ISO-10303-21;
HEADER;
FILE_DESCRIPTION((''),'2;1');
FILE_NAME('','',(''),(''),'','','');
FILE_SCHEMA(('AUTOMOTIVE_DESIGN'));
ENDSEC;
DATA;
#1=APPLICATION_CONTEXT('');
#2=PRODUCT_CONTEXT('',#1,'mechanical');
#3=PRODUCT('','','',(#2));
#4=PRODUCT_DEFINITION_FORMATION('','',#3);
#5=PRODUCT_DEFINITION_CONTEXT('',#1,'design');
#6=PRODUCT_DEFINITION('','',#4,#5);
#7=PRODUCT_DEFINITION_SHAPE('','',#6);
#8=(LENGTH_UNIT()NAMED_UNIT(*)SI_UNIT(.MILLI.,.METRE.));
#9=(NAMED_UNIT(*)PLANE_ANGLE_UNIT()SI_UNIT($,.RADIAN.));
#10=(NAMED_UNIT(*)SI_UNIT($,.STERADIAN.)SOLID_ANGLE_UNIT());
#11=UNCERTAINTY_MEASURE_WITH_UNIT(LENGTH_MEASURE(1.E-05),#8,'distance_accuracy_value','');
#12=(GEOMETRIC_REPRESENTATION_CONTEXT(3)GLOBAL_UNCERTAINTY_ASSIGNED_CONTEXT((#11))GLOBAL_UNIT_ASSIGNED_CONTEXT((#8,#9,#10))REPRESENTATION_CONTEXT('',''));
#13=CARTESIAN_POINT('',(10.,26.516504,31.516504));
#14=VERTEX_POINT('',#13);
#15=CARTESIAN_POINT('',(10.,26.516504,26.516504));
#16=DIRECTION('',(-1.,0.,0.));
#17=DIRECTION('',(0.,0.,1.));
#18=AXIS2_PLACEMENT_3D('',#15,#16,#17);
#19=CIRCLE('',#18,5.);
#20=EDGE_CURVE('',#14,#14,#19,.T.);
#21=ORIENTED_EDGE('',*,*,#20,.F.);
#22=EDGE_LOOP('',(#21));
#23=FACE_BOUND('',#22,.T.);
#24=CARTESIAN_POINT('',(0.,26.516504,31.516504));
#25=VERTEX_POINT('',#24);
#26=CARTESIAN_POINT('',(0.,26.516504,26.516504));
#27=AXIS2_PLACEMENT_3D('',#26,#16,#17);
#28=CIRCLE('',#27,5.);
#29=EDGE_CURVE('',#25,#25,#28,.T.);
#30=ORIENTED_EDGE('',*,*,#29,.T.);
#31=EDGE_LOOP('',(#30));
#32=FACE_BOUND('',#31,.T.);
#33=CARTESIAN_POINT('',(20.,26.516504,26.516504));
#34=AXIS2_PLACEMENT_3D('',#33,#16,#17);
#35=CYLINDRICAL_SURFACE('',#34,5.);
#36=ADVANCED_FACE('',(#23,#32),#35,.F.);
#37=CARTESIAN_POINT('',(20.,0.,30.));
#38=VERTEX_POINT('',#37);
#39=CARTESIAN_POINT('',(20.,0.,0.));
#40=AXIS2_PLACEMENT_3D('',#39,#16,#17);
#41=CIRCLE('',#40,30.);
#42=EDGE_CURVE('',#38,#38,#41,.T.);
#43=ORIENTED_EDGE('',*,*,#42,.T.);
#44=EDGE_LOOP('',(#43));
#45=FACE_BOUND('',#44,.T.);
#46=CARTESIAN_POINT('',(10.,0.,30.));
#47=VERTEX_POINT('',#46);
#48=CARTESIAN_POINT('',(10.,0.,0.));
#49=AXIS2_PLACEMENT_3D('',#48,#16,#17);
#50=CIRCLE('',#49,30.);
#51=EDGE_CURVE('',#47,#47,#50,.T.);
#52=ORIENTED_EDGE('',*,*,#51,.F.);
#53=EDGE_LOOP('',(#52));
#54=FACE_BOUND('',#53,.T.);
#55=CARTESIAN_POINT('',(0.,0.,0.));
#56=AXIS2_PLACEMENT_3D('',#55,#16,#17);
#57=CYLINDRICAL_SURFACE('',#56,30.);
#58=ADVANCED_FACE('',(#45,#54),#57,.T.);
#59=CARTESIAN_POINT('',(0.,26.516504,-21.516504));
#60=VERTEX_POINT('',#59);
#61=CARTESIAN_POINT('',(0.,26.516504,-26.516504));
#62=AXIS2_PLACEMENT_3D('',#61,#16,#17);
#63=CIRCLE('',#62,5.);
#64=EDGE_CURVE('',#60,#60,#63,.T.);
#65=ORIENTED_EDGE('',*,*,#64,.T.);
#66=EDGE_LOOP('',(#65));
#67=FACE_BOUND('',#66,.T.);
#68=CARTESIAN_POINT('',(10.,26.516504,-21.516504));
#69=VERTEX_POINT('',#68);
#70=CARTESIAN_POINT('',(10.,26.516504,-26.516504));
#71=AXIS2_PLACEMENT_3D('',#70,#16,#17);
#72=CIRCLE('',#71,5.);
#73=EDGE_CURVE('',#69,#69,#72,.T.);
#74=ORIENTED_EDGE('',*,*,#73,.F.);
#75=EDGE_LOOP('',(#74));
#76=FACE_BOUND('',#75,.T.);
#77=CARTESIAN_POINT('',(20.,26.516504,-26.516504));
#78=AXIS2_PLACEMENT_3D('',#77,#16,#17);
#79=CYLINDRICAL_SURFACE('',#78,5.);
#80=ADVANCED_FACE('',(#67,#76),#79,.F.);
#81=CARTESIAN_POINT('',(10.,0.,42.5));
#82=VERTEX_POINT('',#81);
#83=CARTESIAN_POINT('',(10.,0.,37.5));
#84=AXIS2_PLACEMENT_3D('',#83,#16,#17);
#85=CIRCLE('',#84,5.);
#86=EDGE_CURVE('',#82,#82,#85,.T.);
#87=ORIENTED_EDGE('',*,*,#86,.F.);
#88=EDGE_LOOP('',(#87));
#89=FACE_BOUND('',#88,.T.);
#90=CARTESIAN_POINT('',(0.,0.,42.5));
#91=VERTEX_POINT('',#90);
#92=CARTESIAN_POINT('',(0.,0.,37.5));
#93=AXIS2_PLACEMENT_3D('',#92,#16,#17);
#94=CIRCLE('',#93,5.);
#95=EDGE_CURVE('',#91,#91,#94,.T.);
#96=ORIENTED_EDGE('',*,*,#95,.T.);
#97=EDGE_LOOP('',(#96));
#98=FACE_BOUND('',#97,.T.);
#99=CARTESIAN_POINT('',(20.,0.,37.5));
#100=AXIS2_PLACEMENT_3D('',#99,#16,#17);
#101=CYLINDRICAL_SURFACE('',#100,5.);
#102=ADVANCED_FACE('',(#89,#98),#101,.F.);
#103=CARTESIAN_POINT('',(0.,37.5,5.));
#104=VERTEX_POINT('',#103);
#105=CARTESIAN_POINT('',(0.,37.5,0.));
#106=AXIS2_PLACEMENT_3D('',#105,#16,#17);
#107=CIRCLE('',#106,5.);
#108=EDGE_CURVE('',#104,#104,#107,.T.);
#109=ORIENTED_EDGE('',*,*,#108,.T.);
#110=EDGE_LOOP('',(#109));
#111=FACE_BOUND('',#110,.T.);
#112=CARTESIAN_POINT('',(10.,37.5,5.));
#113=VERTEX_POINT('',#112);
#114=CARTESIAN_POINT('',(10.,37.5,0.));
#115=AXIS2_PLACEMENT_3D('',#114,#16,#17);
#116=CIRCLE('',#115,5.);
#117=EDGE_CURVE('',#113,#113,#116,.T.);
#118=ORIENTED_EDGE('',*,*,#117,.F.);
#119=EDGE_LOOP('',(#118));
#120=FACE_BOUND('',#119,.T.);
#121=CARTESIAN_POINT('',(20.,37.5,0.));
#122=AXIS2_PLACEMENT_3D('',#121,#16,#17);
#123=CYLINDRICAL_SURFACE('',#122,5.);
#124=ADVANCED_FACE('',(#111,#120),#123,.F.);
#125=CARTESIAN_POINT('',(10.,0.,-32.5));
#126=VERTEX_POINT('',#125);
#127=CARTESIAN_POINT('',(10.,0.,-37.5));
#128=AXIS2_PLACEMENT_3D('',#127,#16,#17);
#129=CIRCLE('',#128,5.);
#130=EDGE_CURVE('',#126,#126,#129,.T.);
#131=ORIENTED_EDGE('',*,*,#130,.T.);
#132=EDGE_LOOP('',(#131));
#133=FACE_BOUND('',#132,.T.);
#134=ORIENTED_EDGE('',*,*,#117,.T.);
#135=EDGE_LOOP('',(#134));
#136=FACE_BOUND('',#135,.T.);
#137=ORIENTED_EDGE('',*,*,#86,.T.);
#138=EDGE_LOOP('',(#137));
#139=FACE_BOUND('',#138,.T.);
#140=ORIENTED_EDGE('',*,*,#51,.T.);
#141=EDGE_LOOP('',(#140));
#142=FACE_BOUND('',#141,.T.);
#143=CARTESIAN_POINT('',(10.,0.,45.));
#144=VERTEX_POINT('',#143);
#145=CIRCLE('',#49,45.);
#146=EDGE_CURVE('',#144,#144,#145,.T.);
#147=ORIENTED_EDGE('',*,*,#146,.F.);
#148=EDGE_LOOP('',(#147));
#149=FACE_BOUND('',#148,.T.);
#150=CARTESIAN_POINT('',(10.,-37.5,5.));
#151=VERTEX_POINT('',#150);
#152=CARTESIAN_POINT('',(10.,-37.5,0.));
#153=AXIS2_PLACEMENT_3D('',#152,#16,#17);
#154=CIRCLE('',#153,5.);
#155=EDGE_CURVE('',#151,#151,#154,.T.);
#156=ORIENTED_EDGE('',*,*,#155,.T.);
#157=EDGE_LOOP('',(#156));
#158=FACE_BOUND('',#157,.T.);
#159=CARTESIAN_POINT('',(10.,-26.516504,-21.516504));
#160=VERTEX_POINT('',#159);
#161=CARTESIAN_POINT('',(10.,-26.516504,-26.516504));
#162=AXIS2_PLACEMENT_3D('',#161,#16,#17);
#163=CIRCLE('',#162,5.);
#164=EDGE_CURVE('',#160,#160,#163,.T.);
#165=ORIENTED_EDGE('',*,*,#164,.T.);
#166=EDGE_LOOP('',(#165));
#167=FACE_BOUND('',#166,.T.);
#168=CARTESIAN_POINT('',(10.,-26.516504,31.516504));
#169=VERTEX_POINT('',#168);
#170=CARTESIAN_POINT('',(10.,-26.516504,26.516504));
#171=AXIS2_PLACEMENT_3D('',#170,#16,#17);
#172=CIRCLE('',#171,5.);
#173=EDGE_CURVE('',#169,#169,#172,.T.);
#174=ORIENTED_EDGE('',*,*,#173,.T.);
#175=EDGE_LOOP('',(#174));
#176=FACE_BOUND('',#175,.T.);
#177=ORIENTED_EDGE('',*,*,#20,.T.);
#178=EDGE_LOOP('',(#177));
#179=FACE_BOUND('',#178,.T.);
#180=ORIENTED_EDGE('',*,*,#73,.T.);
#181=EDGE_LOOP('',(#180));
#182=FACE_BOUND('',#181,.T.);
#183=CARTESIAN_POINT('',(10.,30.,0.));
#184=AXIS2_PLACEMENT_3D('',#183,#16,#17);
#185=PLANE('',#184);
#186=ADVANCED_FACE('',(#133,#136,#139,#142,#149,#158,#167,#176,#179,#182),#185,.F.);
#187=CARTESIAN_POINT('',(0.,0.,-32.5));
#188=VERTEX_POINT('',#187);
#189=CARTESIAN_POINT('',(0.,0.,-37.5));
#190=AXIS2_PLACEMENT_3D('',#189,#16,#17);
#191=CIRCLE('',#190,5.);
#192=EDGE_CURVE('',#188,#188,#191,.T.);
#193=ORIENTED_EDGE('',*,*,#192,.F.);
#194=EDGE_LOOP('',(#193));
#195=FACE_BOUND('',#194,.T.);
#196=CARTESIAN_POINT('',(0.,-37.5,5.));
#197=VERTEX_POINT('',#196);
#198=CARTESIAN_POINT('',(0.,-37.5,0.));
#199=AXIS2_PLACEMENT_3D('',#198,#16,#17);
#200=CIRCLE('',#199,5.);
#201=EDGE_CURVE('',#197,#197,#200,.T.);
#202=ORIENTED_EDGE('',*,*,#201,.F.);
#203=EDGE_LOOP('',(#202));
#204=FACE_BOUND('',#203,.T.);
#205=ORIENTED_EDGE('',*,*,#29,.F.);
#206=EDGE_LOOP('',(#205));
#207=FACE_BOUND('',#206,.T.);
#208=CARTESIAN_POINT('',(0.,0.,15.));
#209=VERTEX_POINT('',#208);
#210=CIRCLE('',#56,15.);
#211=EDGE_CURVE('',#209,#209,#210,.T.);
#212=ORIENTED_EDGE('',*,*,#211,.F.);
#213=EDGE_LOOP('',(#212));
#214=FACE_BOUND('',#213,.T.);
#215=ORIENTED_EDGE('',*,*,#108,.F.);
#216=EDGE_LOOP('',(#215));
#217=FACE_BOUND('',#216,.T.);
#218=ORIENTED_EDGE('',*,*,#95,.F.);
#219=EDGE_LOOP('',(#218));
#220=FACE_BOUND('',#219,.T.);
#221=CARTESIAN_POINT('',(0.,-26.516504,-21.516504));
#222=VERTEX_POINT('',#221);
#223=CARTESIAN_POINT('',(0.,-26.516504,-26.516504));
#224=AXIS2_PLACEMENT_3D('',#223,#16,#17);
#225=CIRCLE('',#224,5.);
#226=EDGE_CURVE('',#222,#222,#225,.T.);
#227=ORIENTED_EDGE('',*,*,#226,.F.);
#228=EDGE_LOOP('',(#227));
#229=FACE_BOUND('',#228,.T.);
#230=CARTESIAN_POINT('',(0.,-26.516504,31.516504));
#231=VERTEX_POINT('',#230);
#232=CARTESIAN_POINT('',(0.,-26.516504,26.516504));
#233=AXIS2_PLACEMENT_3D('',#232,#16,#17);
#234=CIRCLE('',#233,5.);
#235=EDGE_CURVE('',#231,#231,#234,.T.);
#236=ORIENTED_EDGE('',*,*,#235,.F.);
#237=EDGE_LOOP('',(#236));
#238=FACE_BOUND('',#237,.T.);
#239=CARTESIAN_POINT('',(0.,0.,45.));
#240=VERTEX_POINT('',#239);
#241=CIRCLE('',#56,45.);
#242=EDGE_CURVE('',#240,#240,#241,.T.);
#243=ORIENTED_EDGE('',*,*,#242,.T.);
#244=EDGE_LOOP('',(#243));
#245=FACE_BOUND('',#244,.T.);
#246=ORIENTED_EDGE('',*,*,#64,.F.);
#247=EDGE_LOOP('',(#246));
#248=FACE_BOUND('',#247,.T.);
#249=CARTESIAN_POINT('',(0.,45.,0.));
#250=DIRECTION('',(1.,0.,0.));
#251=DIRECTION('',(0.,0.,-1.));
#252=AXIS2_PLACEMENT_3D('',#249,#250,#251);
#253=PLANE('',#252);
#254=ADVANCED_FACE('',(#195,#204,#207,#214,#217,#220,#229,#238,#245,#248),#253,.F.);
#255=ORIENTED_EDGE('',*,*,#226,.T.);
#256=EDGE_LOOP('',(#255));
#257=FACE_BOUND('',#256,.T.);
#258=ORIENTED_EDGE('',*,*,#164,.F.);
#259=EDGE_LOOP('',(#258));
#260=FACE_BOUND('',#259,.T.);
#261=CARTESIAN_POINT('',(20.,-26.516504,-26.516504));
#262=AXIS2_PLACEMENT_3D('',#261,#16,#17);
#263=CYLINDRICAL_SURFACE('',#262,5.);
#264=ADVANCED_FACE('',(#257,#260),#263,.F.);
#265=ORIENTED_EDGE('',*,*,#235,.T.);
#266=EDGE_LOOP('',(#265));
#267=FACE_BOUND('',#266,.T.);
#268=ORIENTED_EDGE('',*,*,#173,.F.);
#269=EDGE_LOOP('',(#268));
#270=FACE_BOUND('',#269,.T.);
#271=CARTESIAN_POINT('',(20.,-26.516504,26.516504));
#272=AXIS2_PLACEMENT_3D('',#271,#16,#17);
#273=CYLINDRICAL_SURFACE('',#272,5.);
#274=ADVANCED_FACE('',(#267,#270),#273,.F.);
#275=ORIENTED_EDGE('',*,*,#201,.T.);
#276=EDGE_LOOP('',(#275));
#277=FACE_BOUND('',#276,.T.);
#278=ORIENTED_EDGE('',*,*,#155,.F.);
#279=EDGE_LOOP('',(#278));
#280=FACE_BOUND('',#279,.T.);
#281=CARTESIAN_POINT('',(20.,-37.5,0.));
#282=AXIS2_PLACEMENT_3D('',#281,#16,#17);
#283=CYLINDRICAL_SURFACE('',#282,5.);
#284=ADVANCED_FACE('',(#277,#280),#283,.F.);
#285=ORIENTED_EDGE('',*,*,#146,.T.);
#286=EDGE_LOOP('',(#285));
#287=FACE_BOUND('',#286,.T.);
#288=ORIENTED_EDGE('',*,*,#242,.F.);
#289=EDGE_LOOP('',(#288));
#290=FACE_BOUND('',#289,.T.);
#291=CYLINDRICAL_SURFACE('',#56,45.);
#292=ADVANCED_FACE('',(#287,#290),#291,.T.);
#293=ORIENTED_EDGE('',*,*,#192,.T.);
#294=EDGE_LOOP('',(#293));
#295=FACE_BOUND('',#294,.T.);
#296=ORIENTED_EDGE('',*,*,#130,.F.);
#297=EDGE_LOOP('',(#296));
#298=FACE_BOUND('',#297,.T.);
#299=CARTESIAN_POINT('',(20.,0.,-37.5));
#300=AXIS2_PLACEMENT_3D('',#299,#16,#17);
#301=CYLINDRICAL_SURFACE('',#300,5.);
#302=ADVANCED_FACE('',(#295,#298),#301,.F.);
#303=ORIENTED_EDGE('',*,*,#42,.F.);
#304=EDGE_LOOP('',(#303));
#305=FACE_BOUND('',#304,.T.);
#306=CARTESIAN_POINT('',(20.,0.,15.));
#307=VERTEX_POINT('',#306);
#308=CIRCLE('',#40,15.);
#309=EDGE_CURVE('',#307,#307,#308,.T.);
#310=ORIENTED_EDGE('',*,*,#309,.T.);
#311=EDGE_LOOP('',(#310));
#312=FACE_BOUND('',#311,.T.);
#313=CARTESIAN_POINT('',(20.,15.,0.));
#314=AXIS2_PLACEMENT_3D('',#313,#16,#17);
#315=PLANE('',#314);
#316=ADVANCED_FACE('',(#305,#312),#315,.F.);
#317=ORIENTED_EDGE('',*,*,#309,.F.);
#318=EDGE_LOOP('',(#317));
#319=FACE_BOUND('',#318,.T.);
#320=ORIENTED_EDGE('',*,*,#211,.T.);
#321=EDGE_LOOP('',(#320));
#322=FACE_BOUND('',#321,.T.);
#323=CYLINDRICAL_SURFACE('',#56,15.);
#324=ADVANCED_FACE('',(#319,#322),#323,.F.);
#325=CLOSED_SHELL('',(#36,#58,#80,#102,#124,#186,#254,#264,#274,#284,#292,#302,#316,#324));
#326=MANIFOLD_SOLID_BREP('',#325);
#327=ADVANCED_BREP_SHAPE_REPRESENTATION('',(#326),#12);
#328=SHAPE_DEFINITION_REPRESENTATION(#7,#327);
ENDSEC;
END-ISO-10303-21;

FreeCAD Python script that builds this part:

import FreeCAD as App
import Part
import Sketcher

V = App.Vector
Q = App.Units.Quantity


def add_polygon(sketch, points):
    """Adds a closed chain of lines whose ends are joined by coincident constraints."""
    first, n = sketch.GeometryCount, len(points)
    for a, b in zip(points, points[1:] + points[:1]):
        sketch.addGeometry(Part.LineSegment(App.Vector(*a, 0), App.Vector(*b, 0)), False)
    for i in range(n):
        sketch.addConstraint(Sketcher.Constraint("Coincident", first + i, 2, first + (i + 1) % n, 1))

doc = App.newDocument("Part")
body = doc.addObject("PartDesign::Body", "Body")

# Sketch on XY plane
sketch1 = body.newObject("Sketcher::SketchObject", "Sketch")
sketch1.AttachmentSupport = (doc.getObject("XY_Plane"), [""])
sketch1.MapMode = "FlatFace"
add_polygon(sketch1, [(0, 15), (20, 15), (20, 30), (10, 30), (10, 45), (0, 45)])  # lines 0-5
sketch1.addConstraint([
    Sketcher.Constraint("Horizontal", 0),
    Sketcher.Constraint("Vertical", 1),
    Sketcher.Constraint("Horizontal", 2),
    Sketcher.Constraint("Vertical", 3),
    Sketcher.Constraint("Horizontal", 4),
    Sketcher.Constraint("Vertical", 5),
    Sketcher.Constraint("PointOnObject", 4, 2, -2),
    Sketcher.Constraint("Equal", 2, 4),
    Sketcher.Constraint("Equal", 1, 3),
    Sketcher.Constraint("DistanceX", 0, 1, 0, 2, Q("20 mm")),
    Sketcher.Constraint("DistanceY", 1, 1, 1, 2, Q("15 mm")),
    Sketcher.Constraint("DistanceY", -1, 1, 0, 2, Q("15 mm")),
])
revolution = body.newObject("PartDesign::Revolution", "Revolution")
revolution.Profile = sketch1
revolution.ReferenceAxis = (sketch1, ["H_Axis"])
revolution.Angle = 360

# Sketch on YZ plane
sketch2 = body.newObject("Sketcher::SketchObject", "Sketch001")
sketch2.AttachmentSupport = (doc.getObject("YZ_Plane"), [""])
sketch2.MapMode = "FlatFace"
sketch2.addGeometry([
    Part.Circle(V(38, 0, 0), V(0, 0, 1), 5),  # 0
    Part.Circle(V(27, 27, 0), V(0, 0, 1), 5),  # 1
    Part.Circle(V(0, 38, 0), V(0, 0, 1), 5),  # 2
    Part.Circle(V(-27, 27, 0), V(0, 0, 1), 5),  # 3
    Part.Circle(V(-38, 0, 0), V(0, 0, 1), 5),  # 4
    Part.Circle(V(-27, -27, 0), V(0, 0, 1), 5),  # 5
    Part.Circle(V(0, -38, 0), V(0, 0, 1), 5),  # 6
    Part.Circle(V(27, -27, 0), V(0, 0, 1), 5),  # 7
], False)
sketch2.addConstraint([
    Sketcher.Constraint("Equal", 0, 1),
    Sketcher.Constraint("Equal", 1, 2),
    Sketcher.Constraint("Equal", 2, 3),
    Sketcher.Constraint("Equal", 3, 4),
    Sketcher.Constraint("Equal", 4, 5),
    Sketcher.Constraint("Equal", 5, 6),
    Sketcher.Constraint("Equal", 6, 7),
    Sketcher.Constraint("Symmetric", 0, 3, 4, 3, -1, 1),
    Sketcher.Constraint("Symmetric", 1, 3, 5, 3, -1, 1),
    Sketcher.Constraint("Symmetric", 2, 3, 6, 3, -1, 1),
    Sketcher.Constraint("Symmetric", 3, 3, 7, 3, -1, 1),
    Sketcher.Constraint("Symmetric", 1, 3, 3, 3, -2),
    Sketcher.Constraint("PointOnObject", 0, 3, -1),
    Sketcher.Constraint("PointOnObject", 2, 3, -2),
    Sketcher.Constraint("Diameter", 0, Q("10 mm")),
    Sketcher.Constraint("DistanceX", 4, 3, 0, 3, Q("75 mm")),
    Sketcher.Constraint("DistanceY", -1, 1, 2, 3, Q("37.5 mm")),
    Sketcher.Constraint("DistanceX", 3, 3, 1, 3, Q("53.033009 mm")),
    Sketcher.Constraint("DistanceY", 5, 3, 3, 3, Q("53.033009 mm")),
])
pocket1 = body.newObject("PartDesign::Pocket", "Pocket")
pocket1.Profile = sketch2
pocket1.Type = "ThroughAll"
pocket1.Reversed = True

doc.recompute()
